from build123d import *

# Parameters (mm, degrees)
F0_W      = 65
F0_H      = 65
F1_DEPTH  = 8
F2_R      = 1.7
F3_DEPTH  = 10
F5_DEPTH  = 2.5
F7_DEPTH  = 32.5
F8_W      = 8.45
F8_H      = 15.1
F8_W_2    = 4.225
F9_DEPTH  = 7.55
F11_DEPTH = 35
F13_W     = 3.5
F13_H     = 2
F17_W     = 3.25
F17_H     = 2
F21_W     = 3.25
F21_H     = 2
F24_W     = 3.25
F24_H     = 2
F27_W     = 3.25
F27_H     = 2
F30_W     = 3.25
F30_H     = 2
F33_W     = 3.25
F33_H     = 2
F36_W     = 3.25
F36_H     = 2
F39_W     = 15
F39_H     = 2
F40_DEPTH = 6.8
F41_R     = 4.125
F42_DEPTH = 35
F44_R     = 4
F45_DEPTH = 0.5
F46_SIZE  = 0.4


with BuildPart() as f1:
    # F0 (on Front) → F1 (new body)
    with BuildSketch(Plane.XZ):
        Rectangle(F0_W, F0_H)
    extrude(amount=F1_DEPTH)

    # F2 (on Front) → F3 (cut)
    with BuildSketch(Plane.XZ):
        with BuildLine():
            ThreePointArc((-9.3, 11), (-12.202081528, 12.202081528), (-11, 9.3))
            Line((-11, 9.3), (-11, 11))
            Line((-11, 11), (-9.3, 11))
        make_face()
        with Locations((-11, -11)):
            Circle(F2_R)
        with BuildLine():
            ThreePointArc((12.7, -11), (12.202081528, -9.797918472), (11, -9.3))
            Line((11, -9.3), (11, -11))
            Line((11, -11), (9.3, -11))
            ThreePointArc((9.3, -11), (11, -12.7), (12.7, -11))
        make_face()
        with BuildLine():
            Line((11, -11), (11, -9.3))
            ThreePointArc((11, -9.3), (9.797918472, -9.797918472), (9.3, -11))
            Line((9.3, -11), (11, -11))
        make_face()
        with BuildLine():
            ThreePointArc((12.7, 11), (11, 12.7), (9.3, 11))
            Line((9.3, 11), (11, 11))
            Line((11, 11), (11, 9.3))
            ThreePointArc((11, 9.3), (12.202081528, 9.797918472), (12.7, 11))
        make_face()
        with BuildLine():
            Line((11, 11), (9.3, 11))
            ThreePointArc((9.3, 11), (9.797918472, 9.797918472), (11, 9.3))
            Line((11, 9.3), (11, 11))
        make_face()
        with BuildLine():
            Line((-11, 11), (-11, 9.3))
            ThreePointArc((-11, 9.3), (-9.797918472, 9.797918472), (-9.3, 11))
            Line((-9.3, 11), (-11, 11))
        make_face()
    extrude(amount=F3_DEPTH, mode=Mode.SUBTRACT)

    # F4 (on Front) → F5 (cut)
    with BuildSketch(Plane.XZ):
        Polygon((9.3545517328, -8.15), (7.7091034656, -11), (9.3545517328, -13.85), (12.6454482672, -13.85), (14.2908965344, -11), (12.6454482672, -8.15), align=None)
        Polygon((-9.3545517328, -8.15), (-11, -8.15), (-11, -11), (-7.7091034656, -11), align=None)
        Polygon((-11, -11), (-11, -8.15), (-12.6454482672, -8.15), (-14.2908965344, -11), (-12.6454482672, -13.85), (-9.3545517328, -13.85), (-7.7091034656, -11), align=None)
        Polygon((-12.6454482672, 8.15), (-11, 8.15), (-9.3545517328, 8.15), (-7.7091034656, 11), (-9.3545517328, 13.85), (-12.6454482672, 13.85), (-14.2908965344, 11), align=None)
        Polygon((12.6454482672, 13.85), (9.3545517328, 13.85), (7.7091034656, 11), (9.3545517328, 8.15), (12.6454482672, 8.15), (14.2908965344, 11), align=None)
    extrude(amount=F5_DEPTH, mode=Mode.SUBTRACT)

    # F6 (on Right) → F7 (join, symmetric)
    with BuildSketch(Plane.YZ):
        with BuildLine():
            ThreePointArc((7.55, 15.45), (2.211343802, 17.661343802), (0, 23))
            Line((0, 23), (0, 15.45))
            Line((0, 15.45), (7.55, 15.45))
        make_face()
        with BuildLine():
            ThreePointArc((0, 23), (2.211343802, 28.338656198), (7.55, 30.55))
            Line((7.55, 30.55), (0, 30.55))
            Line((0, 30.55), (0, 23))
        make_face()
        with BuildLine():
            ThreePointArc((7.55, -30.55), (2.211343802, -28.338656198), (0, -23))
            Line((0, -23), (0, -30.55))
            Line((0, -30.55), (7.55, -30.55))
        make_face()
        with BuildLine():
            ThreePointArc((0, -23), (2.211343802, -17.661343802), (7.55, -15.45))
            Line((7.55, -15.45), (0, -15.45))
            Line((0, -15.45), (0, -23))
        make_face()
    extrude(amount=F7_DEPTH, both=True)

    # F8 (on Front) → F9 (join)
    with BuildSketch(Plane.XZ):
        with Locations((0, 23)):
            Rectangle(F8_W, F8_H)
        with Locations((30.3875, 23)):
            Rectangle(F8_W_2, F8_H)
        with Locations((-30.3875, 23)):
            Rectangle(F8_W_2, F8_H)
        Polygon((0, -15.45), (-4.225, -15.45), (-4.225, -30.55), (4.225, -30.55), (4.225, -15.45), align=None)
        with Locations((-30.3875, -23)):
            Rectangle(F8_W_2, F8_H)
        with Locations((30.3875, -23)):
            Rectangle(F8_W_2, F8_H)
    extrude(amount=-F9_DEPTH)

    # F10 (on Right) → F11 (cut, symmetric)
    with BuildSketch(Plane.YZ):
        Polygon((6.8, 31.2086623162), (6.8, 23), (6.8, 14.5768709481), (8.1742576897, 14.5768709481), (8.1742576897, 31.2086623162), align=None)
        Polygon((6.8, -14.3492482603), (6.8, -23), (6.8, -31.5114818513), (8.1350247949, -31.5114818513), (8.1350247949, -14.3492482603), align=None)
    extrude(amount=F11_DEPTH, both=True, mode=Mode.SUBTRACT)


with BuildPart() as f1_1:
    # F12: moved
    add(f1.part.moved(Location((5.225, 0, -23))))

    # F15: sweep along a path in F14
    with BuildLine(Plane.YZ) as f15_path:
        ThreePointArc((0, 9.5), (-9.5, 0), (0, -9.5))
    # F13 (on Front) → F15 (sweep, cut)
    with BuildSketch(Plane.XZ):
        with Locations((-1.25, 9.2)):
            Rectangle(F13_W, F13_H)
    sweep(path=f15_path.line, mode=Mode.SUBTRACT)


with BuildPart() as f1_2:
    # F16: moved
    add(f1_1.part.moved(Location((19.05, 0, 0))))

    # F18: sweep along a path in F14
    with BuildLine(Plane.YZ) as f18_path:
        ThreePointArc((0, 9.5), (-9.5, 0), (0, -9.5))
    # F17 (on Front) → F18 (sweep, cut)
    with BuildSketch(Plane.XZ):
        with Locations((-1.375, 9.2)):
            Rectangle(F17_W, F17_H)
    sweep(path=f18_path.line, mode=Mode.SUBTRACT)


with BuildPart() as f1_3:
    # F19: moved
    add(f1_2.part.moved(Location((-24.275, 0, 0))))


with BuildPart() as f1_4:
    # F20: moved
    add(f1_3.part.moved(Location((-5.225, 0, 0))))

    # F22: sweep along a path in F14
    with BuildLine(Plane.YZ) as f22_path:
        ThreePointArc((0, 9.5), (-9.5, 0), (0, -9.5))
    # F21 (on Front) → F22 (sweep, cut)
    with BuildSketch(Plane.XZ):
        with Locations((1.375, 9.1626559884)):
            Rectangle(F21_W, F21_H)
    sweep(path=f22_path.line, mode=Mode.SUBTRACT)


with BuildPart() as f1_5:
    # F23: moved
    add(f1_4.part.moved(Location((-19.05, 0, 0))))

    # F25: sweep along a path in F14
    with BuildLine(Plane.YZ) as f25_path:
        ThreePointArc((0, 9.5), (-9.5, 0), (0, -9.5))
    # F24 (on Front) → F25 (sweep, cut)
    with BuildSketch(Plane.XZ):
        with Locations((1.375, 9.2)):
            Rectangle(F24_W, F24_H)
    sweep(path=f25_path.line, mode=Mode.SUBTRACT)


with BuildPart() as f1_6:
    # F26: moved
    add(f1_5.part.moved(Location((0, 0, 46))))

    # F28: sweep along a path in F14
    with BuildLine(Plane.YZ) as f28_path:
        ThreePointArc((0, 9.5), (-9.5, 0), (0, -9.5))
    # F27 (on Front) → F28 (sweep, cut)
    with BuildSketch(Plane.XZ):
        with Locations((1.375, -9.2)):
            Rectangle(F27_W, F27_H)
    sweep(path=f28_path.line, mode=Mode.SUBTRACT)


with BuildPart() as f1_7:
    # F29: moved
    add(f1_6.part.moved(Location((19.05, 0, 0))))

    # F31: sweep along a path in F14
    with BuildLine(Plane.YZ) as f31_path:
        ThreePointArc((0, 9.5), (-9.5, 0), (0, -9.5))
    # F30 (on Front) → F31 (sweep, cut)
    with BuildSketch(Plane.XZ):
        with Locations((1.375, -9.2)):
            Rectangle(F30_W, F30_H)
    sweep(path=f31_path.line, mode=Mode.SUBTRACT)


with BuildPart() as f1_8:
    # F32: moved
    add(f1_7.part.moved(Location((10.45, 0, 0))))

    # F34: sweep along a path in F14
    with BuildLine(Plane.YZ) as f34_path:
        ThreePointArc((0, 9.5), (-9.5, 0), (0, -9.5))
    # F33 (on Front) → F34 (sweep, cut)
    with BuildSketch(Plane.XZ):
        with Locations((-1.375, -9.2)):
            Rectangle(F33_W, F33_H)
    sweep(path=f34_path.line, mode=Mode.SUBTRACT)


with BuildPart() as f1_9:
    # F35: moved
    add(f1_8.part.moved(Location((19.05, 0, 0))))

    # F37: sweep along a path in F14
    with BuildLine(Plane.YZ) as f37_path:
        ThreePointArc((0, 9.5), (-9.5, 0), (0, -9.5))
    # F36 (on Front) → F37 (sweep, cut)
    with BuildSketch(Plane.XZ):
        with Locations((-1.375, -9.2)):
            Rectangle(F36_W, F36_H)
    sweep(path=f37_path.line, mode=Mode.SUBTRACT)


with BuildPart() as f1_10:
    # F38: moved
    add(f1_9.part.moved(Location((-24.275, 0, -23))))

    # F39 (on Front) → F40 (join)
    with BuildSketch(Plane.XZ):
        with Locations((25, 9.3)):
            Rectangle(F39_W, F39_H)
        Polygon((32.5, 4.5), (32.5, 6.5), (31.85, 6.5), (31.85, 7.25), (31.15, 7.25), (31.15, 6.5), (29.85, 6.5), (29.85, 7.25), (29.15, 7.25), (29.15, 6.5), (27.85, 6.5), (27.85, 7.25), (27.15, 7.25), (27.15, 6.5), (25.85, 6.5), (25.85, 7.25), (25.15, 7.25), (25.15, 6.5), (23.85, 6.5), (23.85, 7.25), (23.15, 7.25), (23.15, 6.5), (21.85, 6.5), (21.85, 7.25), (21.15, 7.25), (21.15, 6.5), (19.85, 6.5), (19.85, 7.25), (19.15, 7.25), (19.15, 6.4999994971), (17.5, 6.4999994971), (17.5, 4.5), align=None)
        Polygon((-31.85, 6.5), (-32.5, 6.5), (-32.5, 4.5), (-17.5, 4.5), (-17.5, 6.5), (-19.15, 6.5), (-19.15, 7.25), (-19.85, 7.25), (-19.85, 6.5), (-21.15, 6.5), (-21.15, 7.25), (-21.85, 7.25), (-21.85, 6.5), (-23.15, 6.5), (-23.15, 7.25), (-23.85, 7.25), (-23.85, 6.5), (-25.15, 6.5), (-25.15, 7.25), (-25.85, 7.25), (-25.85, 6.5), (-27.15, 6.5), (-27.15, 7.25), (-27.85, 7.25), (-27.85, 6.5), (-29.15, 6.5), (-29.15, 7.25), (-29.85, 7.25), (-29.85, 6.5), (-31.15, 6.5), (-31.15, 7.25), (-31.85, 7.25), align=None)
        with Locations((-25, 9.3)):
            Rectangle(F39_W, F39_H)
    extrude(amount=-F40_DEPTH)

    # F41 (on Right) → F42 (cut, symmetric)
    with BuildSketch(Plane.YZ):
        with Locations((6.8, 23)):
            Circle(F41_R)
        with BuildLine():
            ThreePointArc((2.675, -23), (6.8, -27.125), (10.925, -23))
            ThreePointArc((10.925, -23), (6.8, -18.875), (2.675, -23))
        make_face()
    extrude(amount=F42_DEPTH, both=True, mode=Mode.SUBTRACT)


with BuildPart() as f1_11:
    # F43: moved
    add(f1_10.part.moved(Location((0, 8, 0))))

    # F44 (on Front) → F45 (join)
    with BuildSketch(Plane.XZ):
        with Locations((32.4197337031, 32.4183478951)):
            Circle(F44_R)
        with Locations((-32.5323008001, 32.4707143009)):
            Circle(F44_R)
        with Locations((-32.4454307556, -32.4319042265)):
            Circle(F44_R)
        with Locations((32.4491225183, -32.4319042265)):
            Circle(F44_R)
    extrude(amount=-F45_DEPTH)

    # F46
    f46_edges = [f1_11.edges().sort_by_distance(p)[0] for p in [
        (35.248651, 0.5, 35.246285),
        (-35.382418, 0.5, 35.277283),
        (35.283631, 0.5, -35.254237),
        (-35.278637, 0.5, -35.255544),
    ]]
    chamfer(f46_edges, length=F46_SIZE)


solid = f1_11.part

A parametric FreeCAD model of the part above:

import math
import FreeCAD as App
import Part
import Sketcher

V = App.Vector
Q = App.Units.Quantity


def edges_at(feature, points):
    """Names of the edges that pass closest to the given points."""
    edges = feature.Shape.Edges
    near = lambda p: min(range(len(edges)), key=lambda i: edges[i].distToShape(Part.Vertex(*p))[0])
    return sorted({f"Edge{near(p) + 1}" for p in points})


def add_polygon(sketch, points):
    """Adds a closed chain of lines whose ends are joined by coincident constraints."""
    first, n = sketch.GeometryCount, len(points)
    for a, b in zip(points, points[1:] + points[:1]):
        sketch.addGeometry(Part.LineSegment(App.Vector(*a, 0), App.Vector(*b, 0)), False)
    for i in range(n):
        sketch.addConstraint(Sketcher.Constraint("Coincident", first + i, 2, first + (i + 1) % n, 1))

doc = App.newDocument("Part")
body = doc.addObject("PartDesign::Body", "Body")

sketch1 = body.newObject("Sketcher::SketchObject", "Sketch")
sketch1.AttachmentSupport = (doc.getObject("XZ_Plane"), [""])
sketch1.MapMode = "FlatFace"
add_polygon(sketch1, [(-32, 32), (-32, -32), (32, -32), (32, 32)])
sketch1.addConstraint([
    Sketcher.Constraint("Vertical", 0),
    Sketcher.Constraint("Horizontal", 1),
    Sketcher.Constraint("Vertical", 2),
    Sketcher.Constraint("Horizontal", 3),
    Sketcher.Constraint("Symmetric", 0, 2, 2, 2, -1, 1),
    Sketcher.Constraint("Equal", 3, 0),
    Sketcher.Constraint("DistanceX", 1, 1, 1, 2, Q("65 mm")),
])
pad1 = body.newObject("PartDesign::Pad", "Pad")
pad1.Profile = sketch1
pad1.Length = 8

sketch2 = body.newObject("Sketcher::SketchObject", "Sketch001")
sketch2.AttachmentSupport = (doc.getObject("XZ_Plane"), [""])
sketch2.MapMode = "FlatFace"
sketch2.addGeometry([
    Part.ArcOfCircle(Part.Circle(V(-11, 11, 0), V(0, 0, 1), 1.7), math.radians(0), math.radians(270)),
    Part.ArcOfCircle(Part.Circle(V(-11, 11, 0), V(0, 0, 1), 1.7), math.radians(-90), math.radians(0)),
    Part.Circle(V(-11, -11, 0), V(0, 0, 1), 1.7),
    Part.ArcOfCircle(Part.Circle(V(11, -11, 0), V(0, 0, 1), 1.7), math.radians(0), math.radians(90)),
    Part.ArcOfCircle(Part.Circle(V(11, -11, 0), V(0, 0, 1), 1.7), math.radians(90), math.radians(180)),
    Part.ArcOfCircle(Part.Circle(V(11, -11, 0), V(0, 0, 1), 1.7), math.radians(180), math.radians(360)),
    Part.ArcOfCircle(Part.Circle(V(11, 11, 0), V(0, 0, 1), 1.7), math.radians(0), math.radians(180)),
    Part.ArcOfCircle(Part.Circle(V(11, 11, 0), V(0, 0, 1), 1.7), math.radians(180), math.radians(270)),
    Part.ArcOfCircle(Part.Circle(V(11, 11, 0), V(0, 0, 1), 1.7), math.radians(-90), math.radians(0)),
], False)
sketch2.addConstraint([
    Sketcher.Constraint("Tangent", 0, 1, 1, 2),
    Sketcher.Constraint("Coincident", 1, 1, 0, 2),
    Sketcher.Constraint("Tangent", 3, 2, 4, 1),
    Sketcher.Constraint("Tangent", 4, 2, 5, 1),
    Sketcher.Constraint("Tangent", 5, 2, 3, 1),
    Sketcher.Constraint("Tangent", 6, 2, 7, 1),
    Sketcher.Constraint("Tangent", 7, 2, 8, 1),
    Sketcher.Constraint("Tangent", 8, 2, 6, 1),
    Sketcher.Constraint("Equal", 1, 2),
    Sketcher.Constraint("Equal", 2, 3),
    Sketcher.Constraint("Equal", 5, 6),
    Sketcher.Constraint("Symmetric", 0, 3, 3, 3, -1, 1),
    Sketcher.Constraint("Symmetric", 2, 3, 6, 3, -1, 1),
    Sketcher.Constraint("Symmetric", 2, 3, 3, 3, -2),
    Sketcher.Constraint("Horizontal", 8, 3, 0, 1),
    Sketcher.Constraint("Horizontal", 5, 3, 4, 2),
    Sketcher.Constraint("Horizontal", 4, 2, 5, 2),
    Sketcher.Constraint("Horizontal", 0, 1, 6, 2),
    Sketcher.Constraint("Horizontal", 6, 2, 8, 2),
    Sketcher.Constraint("Vertical", 2, 3, 1, 1),
    Sketcher.Constraint("Vertical", 8, 3, 3, 2),
    Sketcher.Constraint("Vertical", 3, 2, 7, 2),
    Sketcher.Constraint("Diameter", 2, Q("3.4 mm")),
    Sketcher.Constraint("DistanceX", 0, 3, -1, 1, Q("11 mm")),
    Sketcher.Constraint("DistanceY", -1, 1, 0, 3, Q("11 mm")),
])
pocket1 = body.newObject("PartDesign::Pocket", "Pocket")
pocket1.Profile = sketch2
pocket1.Length = 10
pocket1.Reversed = True

sketch3 = body.newObject("Sketcher::SketchObject", "Sketch002")
sketch3.AttachmentSupport = (doc.getObject("XZ_Plane"), [""])
sketch3.MapMode = "FlatFace"
add_polygon(sketch3, [(9.4, -8.2), (7.7, -11), (9.4, -13.8), (12.6, -13.8), (14.3, -11), (12.6, -8.2)])
add_polygon(sketch3, [(-9.4, -8.2), (-12.6, -8.2), (-14.3, -11), (-12.6, -13.8), (-9.4, -13.8), (-7.7, -11)])
add_polygon(sketch3, [(-12.6, 8.2), (-9.4, 8.2), (-7.7, 11), (-9.4, 13.8), (-12.6, 13.8), (-14.3, 11)])
add_polygon(sketch3, [(12.6, 13.8), (9.4, 13.8), (7.7, 11), (9.4, 8.2), (12.6, 8.2), (14.3, 11)])
sketch3.addConstraint([
    Sketcher.Constraint("Horizontal", 2),
    Sketcher.Constraint("Horizontal", 5),
    Sketcher.Constraint("Horizontal", 6),
    Sketcher.Constraint("Horizontal", 9),
    Sketcher.Constraint("Horizontal", 12),
    Sketcher.Constraint("Horizontal", 15),
    Sketcher.Constraint("Horizontal", 18),
    Sketcher.Constraint("Horizontal", 21),
    Sketcher.Constraint("Symmetric", 5, 2, 12, 2, -1, 1),
    Sketcher.Constraint("Symmetric", 0, 2, 13, 2, -1, 1),
    Sketcher.Constraint("Symmetric", 1, 2, 14, 2, -1, 1),
    Sketcher.Constraint("Symmetric", 3, 2, 16, 2, -1, 1),
    Sketcher.Constraint("Symmetric", 9, 2, 18, 2, -1, 1),
    Sketcher.Constraint("Symmetric", 10, 2, 19, 2, -1, 1),
    Sketcher.Constraint("Symmetric", 11, 2, 20, 2, -1, 1),
    Sketcher.Constraint("Symmetric", 7, 2, 22, 2, -1, 1),
    Sketcher.Constraint("Symmetric", 4, 2, 6, 2, -2),
    Sketcher.Constraint("Symmetric", 3, 2, 7, 2, -2),
    Sketcher.Constraint("Symmetric", 2, 2, 8, 2, -2),
    Sketcher.Constraint("Symmetric", 0, 2, 10, 2, -2),
    Sketcher.Constraint("Parallel", 0, 3),
    Sketcher.Constraint("Parallel", 1, 4),
    Sketcher.Constraint("Parallel", 3, 7),
    Sketcher.Constraint("Parallel", 7, 10),
    Sketcher.Constraint("Parallel", 8, 11),
    Sketcher.Constraint("Parallel", 13, 16),
    Sketcher.Constraint("Parallel", 14, 17),
    Sketcher.Constraint("Parallel", 19, 22),
    Sketcher.Constraint("Parallel", 20, 23),
    Sketcher.Constraint("Horizontal", 0, 2, 3, 2),
    Sketcher.Constraint("Vertical", 2, 2, 4, 2),
    Sketcher.Constraint("Angle", 0, Q("-120 deg")),
    Sketcher.Constraint("DistanceY", 0, 2, -1, 1, Q("11 mm")),
    Sketcher.Constraint("DistanceX", 6, 2, 5, 2, Q("22 mm")),
    Sketcher.Constraint("DistanceY", 2, 2, 4, 2, Q("5.7 mm")),
    Sketcher.Constraint("DistanceX", 2, 1, 2, 2, Q("3.290897 mm")),
])
pocket2 = body.newObject("PartDesign::Pocket", "Pocket001")
pocket2.Profile = sketch3
pocket2.Length = 2.5
pocket2.Reversed = True

sketch4 = body.newObject("Sketcher::SketchObject", "Sketch003")
sketch4.AttachmentSupport = (doc.getObject("YZ_Plane"), [""])
sketch4.MapMode = "FlatFace"
sketch4.addGeometry([
    Part.ArcOfCircle(Part.Circle(V(8, 23, 0), V(0, 0, 1), 8), math.radians(180), math.radians(270)),
    Part.LineSegment(V(0, 23, 0), V(0, 15, 0)),
    Part.LineSegment(V(0, 15, 0), V(8, 15, 0)),
    Part.ArcOfCircle(Part.Circle(V(8, 23, 0), V(0, 0, 1), 8), math.radians(90), math.radians(180)),
    Part.LineSegment(V(8, 31, 0), V(0, 31, 0)),
    Part.LineSegment(V(0, 31, 0), V(0, 23, 0)),
    Part.ArcOfCircle(Part.Circle(V(8, -23, 0), V(0, 0, 1), 8), math.radians(180), math.radians(270)),
    Part.LineSegment(V(0, -23, 0), V(0, -31, 0)),
    Part.LineSegment(V(0, -31, 0), V(8, -31, 0)),
    Part.ArcOfCircle(Part.Circle(V(8, -23, 0), V(0, 0, 1), 8), math.radians(90), math.radians(180)),
    Part.LineSegment(V(8, -15, 0), V(0, -15, 0)),
    Part.LineSegment(V(0, -15, 0), V(0, -23, 0)),
], False)
sketch4.addConstraint([
    Sketcher.Constraint("Tangent", 0, 1, 1, 1),
    Sketcher.Constraint("Coincident", 1, 2, 2, 1),
    Sketcher.Constraint("Tangent", 2, 2, 0, 2),
    Sketcher.Constraint("Tangent", 3, 1, 4, 1),
    Sketcher.Constraint("Coincident", 4, 2, 5, 1),
    Sketcher.Constraint("Tangent", 5, 2, 3, 2),
    Sketcher.Constraint("Tangent", 6, 1, 7, 1),
    Sketcher.Constraint("Coincident", 7, 2, 8, 1),
    Sketcher.Constraint("Tangent", 8, 2, 6, 2),
    Sketcher.Constraint("Tangent", 9, 1, 10, 1),
    Sketcher.Constraint("Coincident", 10, 2, 11, 1),
    Sketcher.Constraint("Tangent", 11, 2, 9, 2),
    Sketcher.Constraint("Vertical", 1),
    Sketcher.Constraint("Horizontal", 2),
    Sketcher.Constraint("Horizontal", 4),
    Sketcher.Constraint("Vertical", 5),
    Sketcher.Constraint("Vertical", 7),
    Sketcher.Constraint("Horizontal", 8),
    Sketcher.Constraint("Horizontal", 10),
    Sketcher.Constraint("Vertical", 11),
    Sketcher.Constraint("Coincident", 3, 3, 0, 3),
    Sketcher.Constraint("Coincident", 9, 3, 6, 3),
    Sketcher.Constraint("Equal", 0, 3),
    Sketcher.Constraint("Equal", 3, 6),
    Sketcher.Constraint("Equal", 6, 9),
    Sketcher.Constraint("Symmetric", 0, 1, 6, 1, -1, 1),
    Sketcher.Constraint("PointOnObject", 0, 1, -2),
    Sketcher.Constraint("Radius", 0, Q("7.55 mm")),
    Sketcher.Constraint("DistanceY", -1, 1, 0, 3, Q("23 mm")),
])
pad2 = body.newObject("PartDesign::Pad", "Pad001")
pad2.Profile = sketch4
pad2.Length = 65
pad2.Midplane = True

sketch5 = body.newObject("Sketcher::SketchObject", "Sketch004")
sketch5.AttachmentSupport = (doc.getObject("XZ_Plane"), [""])
sketch5.MapMode = "FlatFace"
add_polygon(sketch5, [(-4.2, 30.6), (-4.2, 15.4), (4.2, 15.4), (4.2, 30.6)])
add_polygon(sketch5, [(28.3, 30.6), (28.3, 15.4), (32.5, 15.4), (32.5, 30.6)])
add_polygon(sketch5, [(-32.5, 30.6), (-32.5, 15.4), (-28.3, 15.4), (-28.3, 30.6)])
add_polygon(sketch5, [(-4.2, -15.4), (-4.2, -30.6), (4.2, -30.6), (4.2, -15.4)])
add_polygon(sketch5, [(-32.5, -15.4), (-32.5, -30.6), (-28.3, -30.6), (-28.3, -15.4)])
add_polygon(sketch5, [(28.3, -15.4), (28.3, -30.6), (32.5, -30.6), (32.5, -15.4)])
sketch5.addConstraint([
    Sketcher.Constraint("Vertical", 0),
    Sketcher.Constraint("Horizontal", 1),
    Sketcher.Constraint("Vertical", 2),
    Sketcher.Constraint("Horizontal", 3),
    Sketcher.Constraint("Vertical", 4),
    Sketcher.Constraint("Horizontal", 5),
    Sketcher.Constraint("Vertical", 6),
    Sketcher.Constraint("Horizontal", 7),
    Sketcher.Constraint("Vertical", 8),
    Sketcher.Constraint("Horizontal", 9),
    Sketcher.Constraint("Vertical", 10),
    Sketcher.Constraint("Horizontal", 11),
    Sketcher.Constraint("Vertical", 12),
    Sketcher.Constraint("Horizontal", 13),
    Sketcher.Constraint("Vertical", 14),
    Sketcher.Constraint("Horizontal", 15),
    Sketcher.Constraint("Vertical", 16),
    Sketcher.Constraint("Horizontal", 17),
    Sketcher.Constraint("Vertical", 18),
    Sketcher.Constraint("Horizontal", 19),
    Sketcher.Constraint("Vertical", 20),
    Sketcher.Constraint("Horizontal", 21),
    Sketcher.Constraint("Vertical", 22),
    Sketcher.Constraint("Horizontal", 23),
    Sketcher.Constraint("Symmetric", 2, 2, 12, 2, -1, 1),
    Sketcher.Constraint("Symmetric", 0, 2, 14, 2, -1, 1),
    Sketcher.Constraint("Symmetric", 6, 2, 16, 2, -1, 1),
    Sketcher.Constraint("Symmetric", 4, 2, 18, 2, -1, 1),
    Sketcher.Constraint("Symmetric", 10, 2, 20, 2, -1, 1),
    Sketcher.Constraint("Symmetric", 8, 2, 22, 2, -1, 1),
    Sketcher.Constraint("Symmetric", 5, 2, 8, 2, -2),
    Sketcher.Constraint("Symmetric", 7, 2, 10, 2, -2),
    Sketcher.Constraint("Horizontal", 1, 2, 4, 2),
    Sketcher.Constraint("Horizontal", 3, 2, 6, 2),
    Sketcher.Constraint("Vertical", 3, 2, 12, 2),
    Sketcher.Constraint("DistanceY", 0, 2, 0, 1, Q("15.1 mm")),
    Sketcher.Constraint("DistanceY", 12, 2, 0, 2, Q("46 mm")),
    Sketcher.Constraint("DistanceX", 1, 1, 1, 2, Q("8.45 mm")),
    Sketcher.Constraint("DistanceX", -1, 1, 5, 2, Q("32.5 mm")),
    Sketcher.Constraint("DistanceX", 0, 2, 4, 2, Q("32.5 mm")),
])
pad3 = body.newObject("PartDesign::Pad", "Pad002")
pad3.Profile = sketch5
pad3.Length = 7.55
pad3.Reversed = True

sketch6 = body.newObject("Sketcher::SketchObject", "Sketch005")
sketch6.AttachmentSupport = (doc.getObject("YZ_Plane"), [""])
sketch6.MapMode = "FlatFace"
add_polygon(sketch6, [(6.8, 31.2), (6.8, 14.6), (8.2, 14.6), (8.2, 31.2)])
add_polygon(sketch6, [(6.8, -14.3), (6.8, -31.5), (8.1, -31.5), (8.1, -14.3)])
sketch6.addConstraint([
    Sketcher.Constraint("Vertical", 0),
    Sketcher.Constraint("Horizontal", 1),
    Sketcher.Constraint("Vertical", 2),
    Sketcher.Constraint("Horizontal", 3),
    Sketcher.Constraint("Vertical", 4),
    Sketcher.Constraint("Horizontal", 5),
    Sketcher.Constraint("Vertical", 6),
    Sketcher.Constraint("Horizontal", 7),
    Sketcher.Constraint("Vertical", 3, 2, 4, 2),
    Sketcher.Constraint("DistanceX", -1, 1, 0, 2, Q("6.8 mm")),
    Sketcher.Constraint("DistanceY", 0, 2, 0, 1, Q("16.631791 mm")),
    Sketcher.Constraint("DistanceX", 1, 1, 1, 2, Q("1.374258 mm")),
    Sketcher.Constraint("DistanceX", 5, 1, 5, 2, Q("1.335025 mm")),
    Sketcher.Constraint("DistanceY", 4, 2, 4, 1, Q("17.162234 mm")),
    Sketcher.Constraint("DistanceY", -1, 1, 0, 2, Q("14.576871 mm")),
    Sketcher.Constraint("DistanceY", 4, 2, -1, 1, Q("31.511482 mm")),
])
pocket3 = body.newObject("PartDesign::Pocket", "Pocket002")
pocket3.Profile = sketch6
pocket3.Length = 70
pocket3.Midplane = True
body2 = doc.addObject("PartDesign::Body", "Body001")
doc.recompute()

body.Placement = App.Placement(V(5.225, 0, -23), App.Rotation(V(0, 0, 1), 0))
boolean = body2.newObject("PartDesign::Boolean", "Boolean")
boolean.Type = "Fuse"
boolean.addObjects([body])

sketch7 = body2.newObject("Sketcher::SketchObject", "Sketch006")
sketch7.AttachmentSupport = (doc.getObject("XZ_Plane001"), [""])
sketch7.MapMode = "FlatFace"
add_polygon(sketch7, [(-3, 10.2), (-3, 8.2), (0.5, 8.2), (0.5, 10.2)])
sketch7.addConstraint([
    Sketcher.Constraint("Vertical", 0),
    Sketcher.Constraint("Horizontal", 1),
    Sketcher.Constraint("Vertical", 2),
    Sketcher.Constraint("Horizontal", 3),
    Sketcher.Constraint("DistanceY", 0, 2, 0, 1, Q("2 mm")),
    Sketcher.Constraint("DistanceX", 1, 1, 1, 2, Q("3.5 mm")),
    Sketcher.Constraint("DistanceX", 0, 2, -1, 1, Q("3 mm")),
    Sketcher.Constraint("DistanceY", -1, 1, 0, 2, Q("8.2 mm")),
])

sketch8 = body2.newObject("Sketcher::SketchObject", "Sketch007")
sketch8.AttachmentSupport = (doc.getObject("YZ_Plane001"), [""])
sketch8.MapMode = "FlatFace"
sketch8.addGeometry(Part.ArcOfCircle(Part.Circle(V(0, 0, 0), V(0, 0, 1), 10), math.radians(90), math.radians(270)), False)
sketch8.addConstraint([
    Sketcher.Constraint("Coincident", 0, 3, -1, 1),
    Sketcher.Constraint("PointOnObject", 0, 1, -2),
    Sketcher.Constraint("PointOnObject", 0, 2, -2),
    Sketcher.Constraint("Radius", 0, Q("9.5 mm")),
])
doc.recompute()

subtractivepipe = body2.newObject("PartDesign::SubtractivePipe", "SubtractivePipe")
subtractivepipe.Profile = sketch7
subtractivepipe.Spine = (sketch8, ["Edge1"])
body3 = doc.addObject("PartDesign::Body", "Body002")
doc.recompute()

body2.Placement = App.Placement(V(19.05, 0, 0), App.Rotation(V(0, 0, 1), 0))
boolean2 = body3.newObject("PartDesign::Boolean", "Boolean001")
boolean2.Type = "Fuse"
boolean2.addObjects([body2])

sketch9 = body3.newObject("Sketcher::SketchObject", "Sketch008")
sketch9.AttachmentSupport = (doc.getObject("XZ_Plane002"), [""])
sketch9.MapMode = "FlatFace"
add_polygon(sketch9, [(-3, 10.2), (-3, 8.2), (0.2, 8.2), (0.2, 10.2)])
sketch9.addConstraint([
    Sketcher.Constraint("Vertical", 0),
    Sketcher.Constraint("Horizontal", 1),
    Sketcher.Constraint("Vertical", 2),
    Sketcher.Constraint("Horizontal", 3),
    Sketcher.Constraint("DistanceY", 0, 2, 0, 1, Q("2 mm")),
    Sketcher.Constraint("DistanceX", 0, 2, -1, 1, Q("3 mm")),
    Sketcher.Constraint("DistanceX", 1, 1, 1, 2, Q("3.25 mm")),
    Sketcher.Constraint("DistanceY", -1, 1, 0, 2, Q("8.2 mm")),
])

sketch10 = body3.newObject("Sketcher::SketchObject", "Sketch009")
sketch10.AttachmentSupport = (doc.getObject("YZ_Plane002"), [""])
sketch10.MapMode = "FlatFace"
sketch10.addGeometry(Part.ArcOfCircle(Part.Circle(V(0, 0, 0), V(0, 0, 1), 10), math.radians(90), math.radians(270)), False)
sketch10.addConstraint([
    Sketcher.Constraint("Coincident", 0, 3, -1, 1),
    Sketcher.Constraint("PointOnObject", 0, 1, -2),
    Sketcher.Constraint("PointOnObject", 0, 2, -2),
    Sketcher.Constraint("Radius", 0, Q("9.5 mm")),
])
doc.recompute()

subtractivepipe2 = body3.newObject("PartDesign::SubtractivePipe", "SubtractivePipe001")
subtractivepipe2.Profile = sketch9
subtractivepipe2.Spine = (sketch10, ["Edge1"])
body4 = doc.addObject("PartDesign::Body", "Body003")
doc.recompute()

body3.Placement = App.Placement(V(-24.275, 0, 0), App.Rotation(V(0, 0, 1), 0))
boolean3 = body4.newObject("PartDesign::Boolean", "Boolean002")
boolean3.Type = "Fuse"
boolean3.addObjects([body3])
body5 = doc.addObject("PartDesign::Body", "Body004")
doc.recompute()

body4.Placement = App.Placement(V(-5.225, 0, 0), App.Rotation(V(0, 0, 1), 0))
boolean4 = body5.newObject("PartDesign::Boolean", "Boolean003")
boolean4.Type = "Fuse"
boolean4.addObjects([body4])

sketch11 = body5.newObject("Sketcher::SketchObject", "Sketch010")
sketch11.AttachmentSupport = (doc.getObject("XZ_Plane004"), [""])
sketch11.MapMode = "FlatFace"
add_polygon(sketch11, [(-0.2, 10.2), (-0.2, 8.2), (3, 8.2), (3, 10.2)])
sketch11.addConstraint([
    Sketcher.Constraint("Vertical", 0),
    Sketcher.Constraint("Horizontal", 1),
    Sketcher.Constraint("Vertical", 2),
    Sketcher.Constraint("Horizontal", 3),
    Sketcher.Constraint("DistanceY", 0, 2, 0, 1, Q("2 mm")),
    Sketcher.Constraint("DistanceX", -1, 1, 1, 2, Q("3 mm")),
    Sketcher.Constraint("DistanceX", 1, 1, 1, 2, Q("3.25 mm")),
    Sketcher.Constraint("DistanceY", -1, 1, 0, 2, Q("8.162656 mm")),
])

sketch12 = body5.newObject("Sketcher::SketchObject", "Sketch011")
sketch12.AttachmentSupport = (doc.getObject("YZ_Plane004"), [""])
sketch12.MapMode = "FlatFace"
sketch12.addGeometry(Part.ArcOfCircle(Part.Circle(V(0, 0, 0), V(0, 0, 1), 10), math.radians(90), math.radians(270)), False)
sketch12.addConstraint([
    Sketcher.Constraint("Coincident", 0, 3, -1, 1),
    Sketcher.Constraint("PointOnObject", 0, 1, -2),
    Sketcher.Constraint("PointOnObject", 0, 2, -2),
    Sketcher.Constraint("Radius", 0, Q("9.5 mm")),
])
doc.recompute()

subtractivepipe3 = body5.newObject("PartDesign::SubtractivePipe", "SubtractivePipe002")
subtractivepipe3.Profile = sketch11
subtractivepipe3.Spine = (sketch12, ["Edge1"])
body6 = doc.addObject("PartDesign::Body", "Body005")
doc.recompute()

body5.Placement = App.Placement(V(-19.05, 0, 0), App.Rotation(V(0, 0, 1), 0))
boolean5 = body6.newObject("PartDesign::Boolean", "Boolean004")
boolean5.Type = "Fuse"
boolean5.addObjects([body5])

sketch13 = body6.newObject("Sketcher::SketchObject", "Sketch012")
sketch13.AttachmentSupport = (doc.getObject("XZ_Plane005"), [""])
sketch13.MapMode = "FlatFace"
add_polygon(sketch13, [(-0.2, 10.2), (-0.2, 8.2), (3, 8.2), (3, 10.2)])
sketch13.addConstraint([
    Sketcher.Constraint("Vertical", 0),
    Sketcher.Constraint("Horizontal", 1),
    Sketcher.Constraint("Vertical", 2),
    Sketcher.Constraint("Horizontal", 3),
    Sketcher.Constraint("DistanceY", 0, 2, 0, 1, Q("2 mm")),
    Sketcher.Constraint("DistanceX", -1, 1, 1, 2, Q("3 mm")),
    Sketcher.Constraint("DistanceX", 1, 1, 1, 2, Q("3.25 mm")),
    Sketcher.Constraint("DistanceY", -1, 1, 0, 2, Q("8.2 mm")),
])

sketch14 = body6.newObject("Sketcher::SketchObject", "Sketch013")
sketch14.AttachmentSupport = (doc.getObject("YZ_Plane005"), [""])
sketch14.MapMode = "FlatFace"
sketch14.addGeometry(Part.ArcOfCircle(Part.Circle(V(0, 0, 0), V(0, 0, 1), 10), math.radians(90), math.radians(270)), False)
sketch14.addConstraint([
    Sketcher.Constraint("Coincident", 0, 3, -1, 1),
    Sketcher.Constraint("PointOnObject", 0, 1, -2),
    Sketcher.Constraint("PointOnObject", 0, 2, -2),
    Sketcher.Constraint("Radius", 0, Q("9.5 mm")),
])
doc.recompute()

subtractivepipe4 = body6.newObject("PartDesign::SubtractivePipe", "SubtractivePipe003")
subtractivepipe4.Profile = sketch13
subtractivepipe4.Spine = (sketch14, ["Edge1"])
body7 = doc.addObject("PartDesign::Body", "Body006")
doc.recompute()

body6.Placement = App.Placement(V(0, 0, 46), App.Rotation(V(0, 0, 1), 0))
boolean6 = body7.newObject("PartDesign::Boolean", "Boolean005")
boolean6.Type = "Fuse"
boolean6.addObjects([body6])

sketch15 = body7.newObject("Sketcher::SketchObject", "Sketch014")
sketch15.AttachmentSupport = (doc.getObject("XZ_Plane006"), [""])
sketch15.MapMode = "FlatFace"
add_polygon(sketch15, [(-0.2, -8.2), (-0.2, -10.2), (3, -10.2), (3, -8.2)])
sketch15.addConstraint([
    Sketcher.Constraint("Vertical", 0),
    Sketcher.Constraint("Horizontal", 1),
    Sketcher.Constraint("Vertical", 2),
    Sketcher.Constraint("Horizontal", 3),
    Sketcher.Constraint("DistanceY", 0, 2, 0, 1, Q("2 mm")),
    Sketcher.Constraint("DistanceX", -1, 1, 1, 2, Q("3 mm")),
    Sketcher.Constraint("DistanceX", 1, 1, 1, 2, Q("3.25 mm")),
    Sketcher.Constraint("DistanceY", 0, 2, -1, 1, Q("10.2 mm")),
])

sketch16 = body7.newObject("Sketcher::SketchObject", "Sketch015")
sketch16.AttachmentSupport = (doc.getObject("YZ_Plane006"), [""])
sketch16.MapMode = "FlatFace"
sketch16.addGeometry(Part.ArcOfCircle(Part.Circle(V(0, 0, 0), V(0, 0, 1), 10), math.radians(90), math.radians(270)), False)
sketch16.addConstraint([
    Sketcher.Constraint("Coincident", 0, 3, -1, 1),
    Sketcher.Constraint("PointOnObject", 0, 1, -2),
    Sketcher.Constraint("PointOnObject", 0, 2, -2),
    Sketcher.Constraint("Radius", 0, Q("9.5 mm")),
])
doc.recompute()

subtractivepipe5 = body7.newObject("PartDesign::SubtractivePipe", "SubtractivePipe004")
subtractivepipe5.Profile = sketch15
subtractivepipe5.Spine = (sketch16, ["Edge1"])
body8 = doc.addObject("PartDesign::Body", "Body007")
doc.recompute()

body7.Placement = App.Placement(V(19.05, 0, 0), App.Rotation(V(0, 0, 1), 0))
boolean7 = body8.newObject("PartDesign::Boolean", "Boolean006")
boolean7.Type = "Fuse"
boolean7.addObjects([body7])

sketch17 = body8.newObject("Sketcher::SketchObject", "Sketch016")
sketch17.AttachmentSupport = (doc.getObject("XZ_Plane007"), [""])
sketch17.MapMode = "FlatFace"
add_polygon(sketch17, [(-0.2, -8.2), (-0.2, -10.2), (3, -10.2), (3, -8.2)])
sketch17.addConstraint([
    Sketcher.Constraint("Vertical", 0),
    Sketcher.Constraint("Horizontal", 1),
    Sketcher.Constraint("Vertical", 2),
    Sketcher.Constraint("Horizontal", 3),
    Sketcher.Constraint("DistanceY", 0, 2, 0, 1, Q("2 mm")),
    Sketcher.Constraint("DistanceX", -1, 1, 1, 2, Q("3 mm")),
    Sketcher.Constraint("DistanceX", 1, 1, 1, 2, Q("3.25 mm")),
    Sketcher.Constraint("DistanceY", 0, 2, -1, 1, Q("10.2 mm")),
])

sketch18 = body8.newObject("Sketcher::SketchObject", "Sketch017")
sketch18.AttachmentSupport = (doc.getObject("YZ_Plane007"), [""])
sketch18.MapMode = "FlatFace"
sketch18.addGeometry(Part.ArcOfCircle(Part.Circle(V(0, 0, 0), V(0, 0, 1), 10), math.radians(90), math.radians(270)), False)
sketch18.addConstraint([
    Sketcher.Constraint("Coincident", 0, 3, -1, 1),
    Sketcher.Constraint("PointOnObject", 0, 1, -2),
    Sketcher.Constraint("PointOnObject", 0, 2, -2),
    Sketcher.Constraint("Radius", 0, Q("9.5 mm")),
])
doc.recompute()

subtractivepipe6 = body8.newObject("PartDesign::SubtractivePipe", "SubtractivePipe005")
subtractivepipe6.Profile = sketch17
subtractivepipe6.Spine = (sketch18, ["Edge1"])
body9 = doc.addObject("PartDesign::Body", "Body008")
doc.recompute()

body8.Placement = App.Placement(V(10.45, 0, 0), App.Rotation(V(0, 0, 1), 0))
boolean8 = body9.newObject("PartDesign::Boolean", "Boolean007")
boolean8.Type = "Fuse"
boolean8.addObjects([body8])

sketch19 = body9.newObject("Sketcher::SketchObject", "Sketch018")
sketch19.AttachmentSupport = (doc.getObject("XZ_Plane008"), [""])
sketch19.MapMode = "FlatFace"
add_polygon(sketch19, [(-3, -8.2), (-3, -10.2), (0.2, -10.2), (0.2, -8.2)])
sketch19.addConstraint([
    Sketcher.Constraint("Vertical", 0),
    Sketcher.Constraint("Horizontal", 1),
    Sketcher.Constraint("Vertical", 2),
    Sketcher.Constraint("Horizontal", 3),
    Sketcher.Constraint("DistanceY", 0, 2, 0, 1, Q("2 mm")),
    Sketcher.Constraint("DistanceX", 0, 2, -1, 1, Q("3 mm")),
    Sketcher.Constraint("DistanceX", 1, 1, 1, 2, Q("3.25 mm")),
    Sketcher.Constraint("DistanceY", 0, 2, -1, 1, Q("10.2 mm")),
])

sketch20 = body9.newObject("Sketcher::SketchObject", "Sketch019")
sketch20.AttachmentSupport = (doc.getObject("YZ_Plane008"), [""])
sketch20.MapMode = "FlatFace"
sketch20.addGeometry(Part.ArcOfCircle(Part.Circle(V(0, 0, 0), V(0, 0, 1), 10), math.radians(90), math.radians(270)), False)
sketch20.addConstraint([
    Sketcher.Constraint("Coincident", 0, 3, -1, 1),
    Sketcher.Constraint("PointOnObject", 0, 1, -2),
    Sketcher.Constraint("PointOnObject", 0, 2, -2),
    Sketcher.Constraint("Radius", 0, Q("9.5 mm")),
])
doc.recompute()

subtractivepipe7 = body9.newObject("PartDesign::SubtractivePipe", "SubtractivePipe006")
subtractivepipe7.Profile = sketch19
subtractivepipe7.Spine = (sketch20, ["Edge1"])
body10 = doc.addObject("PartDesign::Body", "Body009")
doc.recompute()

body9.Placement = App.Placement(V(19.05, 0, 0), App.Rotation(V(0, 0, 1), 0))
boolean9 = body10.newObject("PartDesign::Boolean", "Boolean008")
boolean9.Type = "Fuse"
boolean9.addObjects([body9])

sketch21 = body10.newObject("Sketcher::SketchObject", "Sketch020")
sketch21.AttachmentSupport = (doc.getObject("XZ_Plane009"), [""])
sketch21.MapMode = "FlatFace"
add_polygon(sketch21, [(-3, -8.2), (-3, -10.2), (0.2, -10.2), (0.2, -8.2)])
sketch21.addConstraint([
    Sketcher.Constraint("Vertical", 0),
    Sketcher.Constraint("Horizontal", 1),
    Sketcher.Constraint("Vertical", 2),
    Sketcher.Constraint("Horizontal", 3),
    Sketcher.Constraint("DistanceY", 0, 2, 0, 1, Q("2 mm")),
    Sketcher.Constraint("DistanceX", 0, 2, -1, 1, Q("3 mm")),
    Sketcher.Constraint("DistanceX", 1, 1, 1, 2, Q("3.25 mm")),
    Sketcher.Constraint("DistanceY", 0, 2, -1, 1, Q("10.2 mm")),
])

sketch22 = body10.newObject("Sketcher::SketchObject", "Sketch021")
sketch22.AttachmentSupport = (doc.getObject("YZ_Plane009"), [""])
sketch22.MapMode = "FlatFace"
sketch22.addGeometry(Part.ArcOfCircle(Part.Circle(V(0, 0, 0), V(0, 0, 1), 10), math.radians(90), math.radians(270)), False)
sketch22.addConstraint([
    Sketcher.Constraint("Coincident", 0, 3, -1, 1),
    Sketcher.Constraint("PointOnObject", 0, 1, -2),
    Sketcher.Constraint("PointOnObject", 0, 2, -2),
    Sketcher.Constraint("Radius", 0, Q("9.5 mm")),
])
doc.recompute()

subtractivepipe8 = body10.newObject("PartDesign::SubtractivePipe", "SubtractivePipe007")
subtractivepipe8.Profile = sketch21
subtractivepipe8.Spine = (sketch22, ["Edge1"])
body11 = doc.addObject("PartDesign::Body", "Body010")
doc.recompute()

body10.Placement = App.Placement(V(-24.275, 0, -23), App.Rotation(V(0, 0, 1), 0))
boolean10 = body11.newObject("PartDesign::Boolean", "Boolean009")
boolean10.Type = "Fuse"
boolean10.addObjects([body10])

sketch23 = body11.newObject("Sketcher::SketchObject", "Sketch022")
sketch23.AttachmentSupport = (doc.getObject("XZ_Plane010"), [""])
sketch23.MapMode = "FlatFace"
add_polygon(sketch23, [(17.5, 10.3), (17.5, 8.3), (32.5, 8.3), (32.5, 10.3)])
add_polygon(sketch23, [(32.5, 4.5), (32.5, 6.5), (31.9, 6.5), (31.9, 7.2), (31.1, 7.2), (31.1, 6.5), (29.9, 6.5), (29.9, 7.2), (29.1, 7.2), (29.1, 6.5), (27.9, 6.5), (27.9, 7.2), (27.1, 7.2), (27.1, 6.5), (25.9, 6.5), (25.9, 7.2), (25.1, 7.2), (25.1, 6.5), (23.9, 6.5), (23.9, 7.2), (23.1, 7.2), (23.1, 6.5), (21.9, 6.5), (21.9, 7.2), (21.1, 7.2), (21.1, 6.5), (19.9, 6.5), (19.9, 7.2), (19.1, 7.2), (19.1, 6.5), (17.5, 6.5), (17.5, 4.5)])
add_polygon(sketch23, [(-31.9, 6.5), (-32.5, 6.5), (-32.5, 4.5), (-17.5, 4.5), (-17.5, 6.5), (-19.1, 6.5), (-19.1, 7.2), (-19.9, 7.2), (-19.9, 6.5), (-21.1, 6.5), (-21.1, 7.2), (-21.9, 7.2), (-21.9, 6.5), (-23.1, 6.5), (-23.1, 7.2), (-23.9, 7.2), (-23.9, 6.5), (-25.1, 6.5), (-25.1, 7.2), (-25.9, 7.2), (-25.9, 6.5), (-27.1, 6.5), (-27.1, 7.2), (-27.9, 7.2), (-27.9, 6.5), (-29.1, 6.5), (-29.1, 7.2), (-29.9, 7.2), (-29.9, 6.5), (-31.1, 6.5), (-31.1, 7.2), (-31.9, 7.2)])
add_polygon(sketch23, [(-32.5, 10.3), (-32.5, 8.3), (-17.5, 8.3), (-17.5, 10.3)])
sketch23.addConstraint([
    Sketcher.Constraint("Vertical", 0),
    Sketcher.Constraint("Horizontal", 1),
    Sketcher.Constraint("Vertical", 2),
    Sketcher.Constraint("Horizontal", 3),
    Sketcher.Constraint("Vertical", 4),
    Sketcher.Constraint("Horizontal", 5),
    Sketcher.Constraint("Vertical", 6),
    Sketcher.Constraint("Horizontal", 7),
    Sketcher.Constraint("Vertical", 8),
    Sketcher.Constraint("Horizontal", 9),
    Sketcher.Constraint("Vertical", 10),
    Sketcher.Constraint("Horizontal", 11),
    Sketcher.Constraint("Vertical", 12),
    Sketcher.Constraint("Horizontal", 13),
    Sketcher.Constraint("Vertical", 14),
    Sketcher.Constraint("Horizontal", 15),
    Sketcher.Constraint("Vertical", 16),
    Sketcher.Constraint("Horizontal", 17),
    Sketcher.Constraint("Vertical", 18),
    Sketcher.Constraint("Horizontal", 19),
    Sketcher.Constraint("Vertical", 20),
    Sketcher.Constraint("Horizontal", 21),
    Sketcher.Constraint("Vertical", 22),
    Sketcher.Constraint("Horizontal", 23),
    Sketcher.Constraint("Vertical", 24),
    Sketcher.Constraint("Horizontal", 25),
    Sketcher.Constraint("Vertical", 26),
    Sketcher.Constraint("Horizontal", 27),
    Sketcher.Constraint("Vertical", 28),
    Sketcher.Constraint("Horizontal", 29),
    Sketcher.Constraint("Vertical", 30),
    Sketcher.Constraint("Horizontal", 31),
    Sketcher.Constraint("Vertical", 32),
    Sketcher.Constraint("Horizontal", 33),
    Sketcher.Constraint("Vertical", 34),
    Sketcher.Constraint("Horizontal", 35),
    Sketcher.Constraint("Horizontal", 36),
    Sketcher.Constraint("Vertical", 37),
    Sketcher.Constraint("Horizontal", 38),
    Sketcher.Constraint("Vertical", 39),
    Sketcher.Constraint("Horizontal", 40),
    Sketcher.Constraint("Vertical", 41),
    Sketcher.Constraint("Horizontal", 42),
    Sketcher.Constraint("Vertical", 43),
    Sketcher.Constraint("Horizontal", 44),
    Sketcher.Constraint("Vertical", 45),
    Sketcher.Constraint("Horizontal", 46),
    Sketcher.Constraint("Vertical", 47),
    Sketcher.Constraint("Horizontal", 48),
    Sketcher.Constraint("Vertical", 49),
    Sketcher.Constraint("Horizontal", 50),
    Sketcher.Constraint("Vertical", 51),
    Sketcher.Constraint("Horizontal", 52),
    Sketcher.Constraint("Vertical", 53),
    Sketcher.Constraint("Horizontal", 54),
    Sketcher.Constraint("Vertical", 55),
    Sketcher.Constraint("Horizontal", 56),
    Sketcher.Constraint("Vertical", 57),
    Sketcher.Constraint("Horizontal", 58),
    Sketcher.Constraint("Vertical", 59),
    Sketcher.Constraint("Horizontal", 60),
    Sketcher.Constraint("Vertical", 61),
    Sketcher.Constraint("Horizontal", 62),
    Sketcher.Constraint("Vertical", 63),
    Sketcher.Constraint("Horizontal", 64),
    Sketcher.Constraint("Vertical", 65),
    Sketcher.Constraint("Horizontal", 66),
    Sketcher.Constraint("Vertical", 67),
    Sketcher.Constraint("Vertical", 68),
    Sketcher.Constraint("Horizontal", 69),
    Sketcher.Constraint("Vertical", 70),
    Sketcher.Constraint("Horizontal", 71),
    Sketcher.Constraint("Symmetric", 4, 2, 36, 2, -2),
    Sketcher.Constraint("Symmetric", 34, 2, 38, 2, -2),
    Sketcher.Constraint("Symmetric", 32, 2, 40, 2, -2),
    Sketcher.Constraint("Symmetric", 30, 2, 42, 2, -2),
    Sketcher.Constraint("Symmetric", 28, 2, 44, 2, -2),
    Sketcher.Constraint("Symmetric", 26, 2, 46, 2, -2),
    Sketcher.Constraint("Symmetric", 24, 2, 48, 2, -2),
    Sketcher.Constraint("Symmetric", 22, 2, 50, 2, -2),
    Sketcher.Constraint("Symmetric", 20, 2, 52, 2, -2),
    Sketcher.Constraint("Symmetric", 18, 2, 54, 2, -2),
    Sketcher.Constraint("Symmetric", 16, 2, 56, 2, -2),
    Sketcher.Constraint("Symmetric", 14, 2, 58, 2, -2),
    Sketcher.Constraint("Symmetric", 12, 2, 60, 2, -2),
    Sketcher.Constraint("Symmetric", 10, 2, 62, 2, -2),
    Sketcher.Constraint("Symmetric", 8, 2, 64, 2, -2),
    Sketcher.Constraint("Symmetric", 6, 2, 66, 2, -2),
    Sketcher.Constraint("Symmetric", 1, 2, 68, 2, -2),
    Sketcher.Constraint("Symmetric", 3, 2, 70, 2, -2),
    Sketcher.Constraint("Horizontal", 5, 2, 8, 2),
    Sketcher.Constraint("Horizontal", 7, 2, 10, 2),
    Sketcher.Constraint("Horizontal", 9, 2, 12, 2),
    Sketcher.Constraint("Horizontal", 11, 2, 14, 2),
    Sketcher.Constraint("Horizontal", 13, 2, 16, 2),
    Sketcher.Constraint("Horizontal", 15, 2, 18, 2),
    Sketcher.Constraint("Horizontal", 17, 2, 20, 2),
    Sketcher.Constraint("Horizontal", 19, 2, 22, 2),
    Sketcher.Constraint("Horizontal", 21, 2, 24, 2),
    Sketcher.Constraint("Horizontal", 23, 2, 26, 2),
    Sketcher.Constraint("Horizontal", 25, 2, 28, 2),
    Sketcher.Constraint("Horizontal", 27, 2, 30, 2),
    Sketcher.Constraint("Horizontal", 29, 2, 32, 2),
    Sketcher.Constraint("Vertical", 2, 2, 4, 2),
    Sketcher.Constraint("Vertical", 3, 2, 33, 2),
    Sketcher.Constraint("Equal", 7, 11),
    Sketcher.Constraint("Equal", 9, 13),
    Sketcher.Constraint("Equal", 11, 15),
    Sketcher.Constraint("Equal", 13, 17),
    Sketcher.Constraint("Equal", 15, 19),
    Sketcher.Constraint("Equal", 17, 21),
    Sketcher.Constraint("Equal", 19, 23),
    Sketcher.Constraint("Equal", 21, 25),
    Sketcher.Constraint("Equal", 23, 27),
    Sketcher.Constraint("Equal", 25, 29),
    Sketcher.Constraint("Equal", 27, 31),
    Sketcher.Constraint("Equal", 2, 4),
    Sketcher.Constraint("DistanceX", 1, 1, 1, 2, Q("15 mm")),
    Sketcher.Constraint("DistanceY", 0, 2, 0, 1, Q("2 mm")),
    Sketcher.Constraint("DistanceX", 7, 2, 7, 1, Q("0.7 mm")),
    Sketcher.Constraint("DistanceX", 9, 2, 9, 1, Q("1.3 mm")),
    Sketcher.Constraint("DistanceX", 5, 2, 5, 1, Q("0.65 mm")),
    Sketcher.Constraint("DistanceY", 6, 1, 6, 2, Q("0.75 mm")),
    Sketcher.Constraint("DistanceX", -1, 1, 0, 2, Q("17.5 mm")),
    Sketcher.Constraint("DistanceY", -1, 1, 0, 2, Q("8.3 mm")),
    Sketcher.Constraint("DistanceY", -1, 1, 4, 2, Q("6.5 mm")),
])
pad4 = body11.newObject("PartDesign::Pad", "Pad003")
pad4.Profile = sketch23
pad4.Length = 6.8
pad4.Reversed = True

sketch24 = body11.newObject("Sketcher::SketchObject", "Sketch023")
sketch24.AttachmentSupport = (doc.getObject("YZ_Plane010"), [""])
sketch24.MapMode = "FlatFace"
sketch24.addGeometry([
    Part.Circle(V(6.8, 23, 0), V(0, 0, 1), 4.1),
    Part.Circle(V(6.8, -23, 0), V(0, 0, 1), 4.1),
], False)
sketch24.addConstraint([
    Sketcher.Constraint("Equal", 0, 1),
    Sketcher.Constraint("Symmetric", 0, 3, 1, 3, -1),
    Sketcher.Constraint("Diameter", 0, Q("8.25 mm")),
    Sketcher.Constraint("DistanceY", -1, 1, 0, 3, Q("23 mm")),
    Sketcher.Constraint("DistanceX", -1, 1, 0, 3, Q("6.8 mm")),
])
pocket4 = body11.newObject("PartDesign::Pocket", "Pocket003")
pocket4.Profile = sketch24
pocket4.Length = 70
pocket4.Midplane = True
body12 = doc.addObject("PartDesign::Body", "Body011")
doc.recompute()

body11.Placement = App.Placement(V(0, 8, 0), App.Rotation(V(0, 0, 1), 0))
boolean11 = body12.newObject("PartDesign::Boolean", "Boolean010")
boolean11.Type = "Fuse"
boolean11.addObjects([body11])

sketch25 = body12.newObject("Sketcher::SketchObject", "Sketch024")
sketch25.AttachmentSupport = (doc.getObject("XZ_Plane011"), [""])
sketch25.MapMode = "FlatFace"
sketch25.addGeometry([
    Part.Circle(V(32.4, 32.4, 0), V(0, 0, 1), 4),
    Part.Circle(V(-32.5, 32.5, 0), V(0, 0, 1), 4),
    Part.Circle(V(-32.4, -32.4, 0), V(0, 0, 1), 4),
    Part.Circle(V(32.4, -32.4, 0), V(0, 0, 1), 4),
], False)
sketch25.addConstraint([
    Sketcher.Constraint("Equal", 0, 1),
    Sketcher.Constraint("Equal", 1, 2),
    Sketcher.Constraint("Equal", 2, 3),
    Sketcher.Constraint("Horizontal", 2, 3, 3, 3),
    Sketcher.Constraint("Diameter", 0, Q("8 mm")),
    Sketcher.Constraint("DistanceX", 1, 3, -1, 1, Q("32.532301 mm")),
    Sketcher.Constraint("DistanceX", 2, 3, -1, 1, Q("32.445431 mm")),
    Sketcher.Constraint("DistanceY", 2, 3, 1, 3, Q("64.902619 mm")),
    Sketcher.Constraint("DistanceX", 0, 3, 3, 3, Q("0.029389 mm")),
    Sketcher.Constraint("DistanceX", -1, 1, 0, 3, Q("32.419734 mm")),
    Sketcher.Constraint("DistanceY", -1, 1, 0, 3, Q("32.418348 mm")),
    Sketcher.Constraint("DistanceY", -1, 1, 1, 3, Q("32.470714 mm")),
])
pad5 = body12.newObject("PartDesign::Pad", "Pad004")
pad5.Profile = sketch25
pad5.Length = 0.5
pad5.Reversed = True
doc.recompute()

chamfer = body12.newObject("PartDesign::Chamfer", "Chamfer")
chamfer.Base = (pad5, edges_at(pad5, [
    (35.249, 0.5, 35.246),
    (-35.382, 0.5, 35.277),
    (35.284, 0.5, -35.254),
    (-35.279, 0.5, -35.256),
]))
chamfer.Size = 0.4

doc.recompute()
